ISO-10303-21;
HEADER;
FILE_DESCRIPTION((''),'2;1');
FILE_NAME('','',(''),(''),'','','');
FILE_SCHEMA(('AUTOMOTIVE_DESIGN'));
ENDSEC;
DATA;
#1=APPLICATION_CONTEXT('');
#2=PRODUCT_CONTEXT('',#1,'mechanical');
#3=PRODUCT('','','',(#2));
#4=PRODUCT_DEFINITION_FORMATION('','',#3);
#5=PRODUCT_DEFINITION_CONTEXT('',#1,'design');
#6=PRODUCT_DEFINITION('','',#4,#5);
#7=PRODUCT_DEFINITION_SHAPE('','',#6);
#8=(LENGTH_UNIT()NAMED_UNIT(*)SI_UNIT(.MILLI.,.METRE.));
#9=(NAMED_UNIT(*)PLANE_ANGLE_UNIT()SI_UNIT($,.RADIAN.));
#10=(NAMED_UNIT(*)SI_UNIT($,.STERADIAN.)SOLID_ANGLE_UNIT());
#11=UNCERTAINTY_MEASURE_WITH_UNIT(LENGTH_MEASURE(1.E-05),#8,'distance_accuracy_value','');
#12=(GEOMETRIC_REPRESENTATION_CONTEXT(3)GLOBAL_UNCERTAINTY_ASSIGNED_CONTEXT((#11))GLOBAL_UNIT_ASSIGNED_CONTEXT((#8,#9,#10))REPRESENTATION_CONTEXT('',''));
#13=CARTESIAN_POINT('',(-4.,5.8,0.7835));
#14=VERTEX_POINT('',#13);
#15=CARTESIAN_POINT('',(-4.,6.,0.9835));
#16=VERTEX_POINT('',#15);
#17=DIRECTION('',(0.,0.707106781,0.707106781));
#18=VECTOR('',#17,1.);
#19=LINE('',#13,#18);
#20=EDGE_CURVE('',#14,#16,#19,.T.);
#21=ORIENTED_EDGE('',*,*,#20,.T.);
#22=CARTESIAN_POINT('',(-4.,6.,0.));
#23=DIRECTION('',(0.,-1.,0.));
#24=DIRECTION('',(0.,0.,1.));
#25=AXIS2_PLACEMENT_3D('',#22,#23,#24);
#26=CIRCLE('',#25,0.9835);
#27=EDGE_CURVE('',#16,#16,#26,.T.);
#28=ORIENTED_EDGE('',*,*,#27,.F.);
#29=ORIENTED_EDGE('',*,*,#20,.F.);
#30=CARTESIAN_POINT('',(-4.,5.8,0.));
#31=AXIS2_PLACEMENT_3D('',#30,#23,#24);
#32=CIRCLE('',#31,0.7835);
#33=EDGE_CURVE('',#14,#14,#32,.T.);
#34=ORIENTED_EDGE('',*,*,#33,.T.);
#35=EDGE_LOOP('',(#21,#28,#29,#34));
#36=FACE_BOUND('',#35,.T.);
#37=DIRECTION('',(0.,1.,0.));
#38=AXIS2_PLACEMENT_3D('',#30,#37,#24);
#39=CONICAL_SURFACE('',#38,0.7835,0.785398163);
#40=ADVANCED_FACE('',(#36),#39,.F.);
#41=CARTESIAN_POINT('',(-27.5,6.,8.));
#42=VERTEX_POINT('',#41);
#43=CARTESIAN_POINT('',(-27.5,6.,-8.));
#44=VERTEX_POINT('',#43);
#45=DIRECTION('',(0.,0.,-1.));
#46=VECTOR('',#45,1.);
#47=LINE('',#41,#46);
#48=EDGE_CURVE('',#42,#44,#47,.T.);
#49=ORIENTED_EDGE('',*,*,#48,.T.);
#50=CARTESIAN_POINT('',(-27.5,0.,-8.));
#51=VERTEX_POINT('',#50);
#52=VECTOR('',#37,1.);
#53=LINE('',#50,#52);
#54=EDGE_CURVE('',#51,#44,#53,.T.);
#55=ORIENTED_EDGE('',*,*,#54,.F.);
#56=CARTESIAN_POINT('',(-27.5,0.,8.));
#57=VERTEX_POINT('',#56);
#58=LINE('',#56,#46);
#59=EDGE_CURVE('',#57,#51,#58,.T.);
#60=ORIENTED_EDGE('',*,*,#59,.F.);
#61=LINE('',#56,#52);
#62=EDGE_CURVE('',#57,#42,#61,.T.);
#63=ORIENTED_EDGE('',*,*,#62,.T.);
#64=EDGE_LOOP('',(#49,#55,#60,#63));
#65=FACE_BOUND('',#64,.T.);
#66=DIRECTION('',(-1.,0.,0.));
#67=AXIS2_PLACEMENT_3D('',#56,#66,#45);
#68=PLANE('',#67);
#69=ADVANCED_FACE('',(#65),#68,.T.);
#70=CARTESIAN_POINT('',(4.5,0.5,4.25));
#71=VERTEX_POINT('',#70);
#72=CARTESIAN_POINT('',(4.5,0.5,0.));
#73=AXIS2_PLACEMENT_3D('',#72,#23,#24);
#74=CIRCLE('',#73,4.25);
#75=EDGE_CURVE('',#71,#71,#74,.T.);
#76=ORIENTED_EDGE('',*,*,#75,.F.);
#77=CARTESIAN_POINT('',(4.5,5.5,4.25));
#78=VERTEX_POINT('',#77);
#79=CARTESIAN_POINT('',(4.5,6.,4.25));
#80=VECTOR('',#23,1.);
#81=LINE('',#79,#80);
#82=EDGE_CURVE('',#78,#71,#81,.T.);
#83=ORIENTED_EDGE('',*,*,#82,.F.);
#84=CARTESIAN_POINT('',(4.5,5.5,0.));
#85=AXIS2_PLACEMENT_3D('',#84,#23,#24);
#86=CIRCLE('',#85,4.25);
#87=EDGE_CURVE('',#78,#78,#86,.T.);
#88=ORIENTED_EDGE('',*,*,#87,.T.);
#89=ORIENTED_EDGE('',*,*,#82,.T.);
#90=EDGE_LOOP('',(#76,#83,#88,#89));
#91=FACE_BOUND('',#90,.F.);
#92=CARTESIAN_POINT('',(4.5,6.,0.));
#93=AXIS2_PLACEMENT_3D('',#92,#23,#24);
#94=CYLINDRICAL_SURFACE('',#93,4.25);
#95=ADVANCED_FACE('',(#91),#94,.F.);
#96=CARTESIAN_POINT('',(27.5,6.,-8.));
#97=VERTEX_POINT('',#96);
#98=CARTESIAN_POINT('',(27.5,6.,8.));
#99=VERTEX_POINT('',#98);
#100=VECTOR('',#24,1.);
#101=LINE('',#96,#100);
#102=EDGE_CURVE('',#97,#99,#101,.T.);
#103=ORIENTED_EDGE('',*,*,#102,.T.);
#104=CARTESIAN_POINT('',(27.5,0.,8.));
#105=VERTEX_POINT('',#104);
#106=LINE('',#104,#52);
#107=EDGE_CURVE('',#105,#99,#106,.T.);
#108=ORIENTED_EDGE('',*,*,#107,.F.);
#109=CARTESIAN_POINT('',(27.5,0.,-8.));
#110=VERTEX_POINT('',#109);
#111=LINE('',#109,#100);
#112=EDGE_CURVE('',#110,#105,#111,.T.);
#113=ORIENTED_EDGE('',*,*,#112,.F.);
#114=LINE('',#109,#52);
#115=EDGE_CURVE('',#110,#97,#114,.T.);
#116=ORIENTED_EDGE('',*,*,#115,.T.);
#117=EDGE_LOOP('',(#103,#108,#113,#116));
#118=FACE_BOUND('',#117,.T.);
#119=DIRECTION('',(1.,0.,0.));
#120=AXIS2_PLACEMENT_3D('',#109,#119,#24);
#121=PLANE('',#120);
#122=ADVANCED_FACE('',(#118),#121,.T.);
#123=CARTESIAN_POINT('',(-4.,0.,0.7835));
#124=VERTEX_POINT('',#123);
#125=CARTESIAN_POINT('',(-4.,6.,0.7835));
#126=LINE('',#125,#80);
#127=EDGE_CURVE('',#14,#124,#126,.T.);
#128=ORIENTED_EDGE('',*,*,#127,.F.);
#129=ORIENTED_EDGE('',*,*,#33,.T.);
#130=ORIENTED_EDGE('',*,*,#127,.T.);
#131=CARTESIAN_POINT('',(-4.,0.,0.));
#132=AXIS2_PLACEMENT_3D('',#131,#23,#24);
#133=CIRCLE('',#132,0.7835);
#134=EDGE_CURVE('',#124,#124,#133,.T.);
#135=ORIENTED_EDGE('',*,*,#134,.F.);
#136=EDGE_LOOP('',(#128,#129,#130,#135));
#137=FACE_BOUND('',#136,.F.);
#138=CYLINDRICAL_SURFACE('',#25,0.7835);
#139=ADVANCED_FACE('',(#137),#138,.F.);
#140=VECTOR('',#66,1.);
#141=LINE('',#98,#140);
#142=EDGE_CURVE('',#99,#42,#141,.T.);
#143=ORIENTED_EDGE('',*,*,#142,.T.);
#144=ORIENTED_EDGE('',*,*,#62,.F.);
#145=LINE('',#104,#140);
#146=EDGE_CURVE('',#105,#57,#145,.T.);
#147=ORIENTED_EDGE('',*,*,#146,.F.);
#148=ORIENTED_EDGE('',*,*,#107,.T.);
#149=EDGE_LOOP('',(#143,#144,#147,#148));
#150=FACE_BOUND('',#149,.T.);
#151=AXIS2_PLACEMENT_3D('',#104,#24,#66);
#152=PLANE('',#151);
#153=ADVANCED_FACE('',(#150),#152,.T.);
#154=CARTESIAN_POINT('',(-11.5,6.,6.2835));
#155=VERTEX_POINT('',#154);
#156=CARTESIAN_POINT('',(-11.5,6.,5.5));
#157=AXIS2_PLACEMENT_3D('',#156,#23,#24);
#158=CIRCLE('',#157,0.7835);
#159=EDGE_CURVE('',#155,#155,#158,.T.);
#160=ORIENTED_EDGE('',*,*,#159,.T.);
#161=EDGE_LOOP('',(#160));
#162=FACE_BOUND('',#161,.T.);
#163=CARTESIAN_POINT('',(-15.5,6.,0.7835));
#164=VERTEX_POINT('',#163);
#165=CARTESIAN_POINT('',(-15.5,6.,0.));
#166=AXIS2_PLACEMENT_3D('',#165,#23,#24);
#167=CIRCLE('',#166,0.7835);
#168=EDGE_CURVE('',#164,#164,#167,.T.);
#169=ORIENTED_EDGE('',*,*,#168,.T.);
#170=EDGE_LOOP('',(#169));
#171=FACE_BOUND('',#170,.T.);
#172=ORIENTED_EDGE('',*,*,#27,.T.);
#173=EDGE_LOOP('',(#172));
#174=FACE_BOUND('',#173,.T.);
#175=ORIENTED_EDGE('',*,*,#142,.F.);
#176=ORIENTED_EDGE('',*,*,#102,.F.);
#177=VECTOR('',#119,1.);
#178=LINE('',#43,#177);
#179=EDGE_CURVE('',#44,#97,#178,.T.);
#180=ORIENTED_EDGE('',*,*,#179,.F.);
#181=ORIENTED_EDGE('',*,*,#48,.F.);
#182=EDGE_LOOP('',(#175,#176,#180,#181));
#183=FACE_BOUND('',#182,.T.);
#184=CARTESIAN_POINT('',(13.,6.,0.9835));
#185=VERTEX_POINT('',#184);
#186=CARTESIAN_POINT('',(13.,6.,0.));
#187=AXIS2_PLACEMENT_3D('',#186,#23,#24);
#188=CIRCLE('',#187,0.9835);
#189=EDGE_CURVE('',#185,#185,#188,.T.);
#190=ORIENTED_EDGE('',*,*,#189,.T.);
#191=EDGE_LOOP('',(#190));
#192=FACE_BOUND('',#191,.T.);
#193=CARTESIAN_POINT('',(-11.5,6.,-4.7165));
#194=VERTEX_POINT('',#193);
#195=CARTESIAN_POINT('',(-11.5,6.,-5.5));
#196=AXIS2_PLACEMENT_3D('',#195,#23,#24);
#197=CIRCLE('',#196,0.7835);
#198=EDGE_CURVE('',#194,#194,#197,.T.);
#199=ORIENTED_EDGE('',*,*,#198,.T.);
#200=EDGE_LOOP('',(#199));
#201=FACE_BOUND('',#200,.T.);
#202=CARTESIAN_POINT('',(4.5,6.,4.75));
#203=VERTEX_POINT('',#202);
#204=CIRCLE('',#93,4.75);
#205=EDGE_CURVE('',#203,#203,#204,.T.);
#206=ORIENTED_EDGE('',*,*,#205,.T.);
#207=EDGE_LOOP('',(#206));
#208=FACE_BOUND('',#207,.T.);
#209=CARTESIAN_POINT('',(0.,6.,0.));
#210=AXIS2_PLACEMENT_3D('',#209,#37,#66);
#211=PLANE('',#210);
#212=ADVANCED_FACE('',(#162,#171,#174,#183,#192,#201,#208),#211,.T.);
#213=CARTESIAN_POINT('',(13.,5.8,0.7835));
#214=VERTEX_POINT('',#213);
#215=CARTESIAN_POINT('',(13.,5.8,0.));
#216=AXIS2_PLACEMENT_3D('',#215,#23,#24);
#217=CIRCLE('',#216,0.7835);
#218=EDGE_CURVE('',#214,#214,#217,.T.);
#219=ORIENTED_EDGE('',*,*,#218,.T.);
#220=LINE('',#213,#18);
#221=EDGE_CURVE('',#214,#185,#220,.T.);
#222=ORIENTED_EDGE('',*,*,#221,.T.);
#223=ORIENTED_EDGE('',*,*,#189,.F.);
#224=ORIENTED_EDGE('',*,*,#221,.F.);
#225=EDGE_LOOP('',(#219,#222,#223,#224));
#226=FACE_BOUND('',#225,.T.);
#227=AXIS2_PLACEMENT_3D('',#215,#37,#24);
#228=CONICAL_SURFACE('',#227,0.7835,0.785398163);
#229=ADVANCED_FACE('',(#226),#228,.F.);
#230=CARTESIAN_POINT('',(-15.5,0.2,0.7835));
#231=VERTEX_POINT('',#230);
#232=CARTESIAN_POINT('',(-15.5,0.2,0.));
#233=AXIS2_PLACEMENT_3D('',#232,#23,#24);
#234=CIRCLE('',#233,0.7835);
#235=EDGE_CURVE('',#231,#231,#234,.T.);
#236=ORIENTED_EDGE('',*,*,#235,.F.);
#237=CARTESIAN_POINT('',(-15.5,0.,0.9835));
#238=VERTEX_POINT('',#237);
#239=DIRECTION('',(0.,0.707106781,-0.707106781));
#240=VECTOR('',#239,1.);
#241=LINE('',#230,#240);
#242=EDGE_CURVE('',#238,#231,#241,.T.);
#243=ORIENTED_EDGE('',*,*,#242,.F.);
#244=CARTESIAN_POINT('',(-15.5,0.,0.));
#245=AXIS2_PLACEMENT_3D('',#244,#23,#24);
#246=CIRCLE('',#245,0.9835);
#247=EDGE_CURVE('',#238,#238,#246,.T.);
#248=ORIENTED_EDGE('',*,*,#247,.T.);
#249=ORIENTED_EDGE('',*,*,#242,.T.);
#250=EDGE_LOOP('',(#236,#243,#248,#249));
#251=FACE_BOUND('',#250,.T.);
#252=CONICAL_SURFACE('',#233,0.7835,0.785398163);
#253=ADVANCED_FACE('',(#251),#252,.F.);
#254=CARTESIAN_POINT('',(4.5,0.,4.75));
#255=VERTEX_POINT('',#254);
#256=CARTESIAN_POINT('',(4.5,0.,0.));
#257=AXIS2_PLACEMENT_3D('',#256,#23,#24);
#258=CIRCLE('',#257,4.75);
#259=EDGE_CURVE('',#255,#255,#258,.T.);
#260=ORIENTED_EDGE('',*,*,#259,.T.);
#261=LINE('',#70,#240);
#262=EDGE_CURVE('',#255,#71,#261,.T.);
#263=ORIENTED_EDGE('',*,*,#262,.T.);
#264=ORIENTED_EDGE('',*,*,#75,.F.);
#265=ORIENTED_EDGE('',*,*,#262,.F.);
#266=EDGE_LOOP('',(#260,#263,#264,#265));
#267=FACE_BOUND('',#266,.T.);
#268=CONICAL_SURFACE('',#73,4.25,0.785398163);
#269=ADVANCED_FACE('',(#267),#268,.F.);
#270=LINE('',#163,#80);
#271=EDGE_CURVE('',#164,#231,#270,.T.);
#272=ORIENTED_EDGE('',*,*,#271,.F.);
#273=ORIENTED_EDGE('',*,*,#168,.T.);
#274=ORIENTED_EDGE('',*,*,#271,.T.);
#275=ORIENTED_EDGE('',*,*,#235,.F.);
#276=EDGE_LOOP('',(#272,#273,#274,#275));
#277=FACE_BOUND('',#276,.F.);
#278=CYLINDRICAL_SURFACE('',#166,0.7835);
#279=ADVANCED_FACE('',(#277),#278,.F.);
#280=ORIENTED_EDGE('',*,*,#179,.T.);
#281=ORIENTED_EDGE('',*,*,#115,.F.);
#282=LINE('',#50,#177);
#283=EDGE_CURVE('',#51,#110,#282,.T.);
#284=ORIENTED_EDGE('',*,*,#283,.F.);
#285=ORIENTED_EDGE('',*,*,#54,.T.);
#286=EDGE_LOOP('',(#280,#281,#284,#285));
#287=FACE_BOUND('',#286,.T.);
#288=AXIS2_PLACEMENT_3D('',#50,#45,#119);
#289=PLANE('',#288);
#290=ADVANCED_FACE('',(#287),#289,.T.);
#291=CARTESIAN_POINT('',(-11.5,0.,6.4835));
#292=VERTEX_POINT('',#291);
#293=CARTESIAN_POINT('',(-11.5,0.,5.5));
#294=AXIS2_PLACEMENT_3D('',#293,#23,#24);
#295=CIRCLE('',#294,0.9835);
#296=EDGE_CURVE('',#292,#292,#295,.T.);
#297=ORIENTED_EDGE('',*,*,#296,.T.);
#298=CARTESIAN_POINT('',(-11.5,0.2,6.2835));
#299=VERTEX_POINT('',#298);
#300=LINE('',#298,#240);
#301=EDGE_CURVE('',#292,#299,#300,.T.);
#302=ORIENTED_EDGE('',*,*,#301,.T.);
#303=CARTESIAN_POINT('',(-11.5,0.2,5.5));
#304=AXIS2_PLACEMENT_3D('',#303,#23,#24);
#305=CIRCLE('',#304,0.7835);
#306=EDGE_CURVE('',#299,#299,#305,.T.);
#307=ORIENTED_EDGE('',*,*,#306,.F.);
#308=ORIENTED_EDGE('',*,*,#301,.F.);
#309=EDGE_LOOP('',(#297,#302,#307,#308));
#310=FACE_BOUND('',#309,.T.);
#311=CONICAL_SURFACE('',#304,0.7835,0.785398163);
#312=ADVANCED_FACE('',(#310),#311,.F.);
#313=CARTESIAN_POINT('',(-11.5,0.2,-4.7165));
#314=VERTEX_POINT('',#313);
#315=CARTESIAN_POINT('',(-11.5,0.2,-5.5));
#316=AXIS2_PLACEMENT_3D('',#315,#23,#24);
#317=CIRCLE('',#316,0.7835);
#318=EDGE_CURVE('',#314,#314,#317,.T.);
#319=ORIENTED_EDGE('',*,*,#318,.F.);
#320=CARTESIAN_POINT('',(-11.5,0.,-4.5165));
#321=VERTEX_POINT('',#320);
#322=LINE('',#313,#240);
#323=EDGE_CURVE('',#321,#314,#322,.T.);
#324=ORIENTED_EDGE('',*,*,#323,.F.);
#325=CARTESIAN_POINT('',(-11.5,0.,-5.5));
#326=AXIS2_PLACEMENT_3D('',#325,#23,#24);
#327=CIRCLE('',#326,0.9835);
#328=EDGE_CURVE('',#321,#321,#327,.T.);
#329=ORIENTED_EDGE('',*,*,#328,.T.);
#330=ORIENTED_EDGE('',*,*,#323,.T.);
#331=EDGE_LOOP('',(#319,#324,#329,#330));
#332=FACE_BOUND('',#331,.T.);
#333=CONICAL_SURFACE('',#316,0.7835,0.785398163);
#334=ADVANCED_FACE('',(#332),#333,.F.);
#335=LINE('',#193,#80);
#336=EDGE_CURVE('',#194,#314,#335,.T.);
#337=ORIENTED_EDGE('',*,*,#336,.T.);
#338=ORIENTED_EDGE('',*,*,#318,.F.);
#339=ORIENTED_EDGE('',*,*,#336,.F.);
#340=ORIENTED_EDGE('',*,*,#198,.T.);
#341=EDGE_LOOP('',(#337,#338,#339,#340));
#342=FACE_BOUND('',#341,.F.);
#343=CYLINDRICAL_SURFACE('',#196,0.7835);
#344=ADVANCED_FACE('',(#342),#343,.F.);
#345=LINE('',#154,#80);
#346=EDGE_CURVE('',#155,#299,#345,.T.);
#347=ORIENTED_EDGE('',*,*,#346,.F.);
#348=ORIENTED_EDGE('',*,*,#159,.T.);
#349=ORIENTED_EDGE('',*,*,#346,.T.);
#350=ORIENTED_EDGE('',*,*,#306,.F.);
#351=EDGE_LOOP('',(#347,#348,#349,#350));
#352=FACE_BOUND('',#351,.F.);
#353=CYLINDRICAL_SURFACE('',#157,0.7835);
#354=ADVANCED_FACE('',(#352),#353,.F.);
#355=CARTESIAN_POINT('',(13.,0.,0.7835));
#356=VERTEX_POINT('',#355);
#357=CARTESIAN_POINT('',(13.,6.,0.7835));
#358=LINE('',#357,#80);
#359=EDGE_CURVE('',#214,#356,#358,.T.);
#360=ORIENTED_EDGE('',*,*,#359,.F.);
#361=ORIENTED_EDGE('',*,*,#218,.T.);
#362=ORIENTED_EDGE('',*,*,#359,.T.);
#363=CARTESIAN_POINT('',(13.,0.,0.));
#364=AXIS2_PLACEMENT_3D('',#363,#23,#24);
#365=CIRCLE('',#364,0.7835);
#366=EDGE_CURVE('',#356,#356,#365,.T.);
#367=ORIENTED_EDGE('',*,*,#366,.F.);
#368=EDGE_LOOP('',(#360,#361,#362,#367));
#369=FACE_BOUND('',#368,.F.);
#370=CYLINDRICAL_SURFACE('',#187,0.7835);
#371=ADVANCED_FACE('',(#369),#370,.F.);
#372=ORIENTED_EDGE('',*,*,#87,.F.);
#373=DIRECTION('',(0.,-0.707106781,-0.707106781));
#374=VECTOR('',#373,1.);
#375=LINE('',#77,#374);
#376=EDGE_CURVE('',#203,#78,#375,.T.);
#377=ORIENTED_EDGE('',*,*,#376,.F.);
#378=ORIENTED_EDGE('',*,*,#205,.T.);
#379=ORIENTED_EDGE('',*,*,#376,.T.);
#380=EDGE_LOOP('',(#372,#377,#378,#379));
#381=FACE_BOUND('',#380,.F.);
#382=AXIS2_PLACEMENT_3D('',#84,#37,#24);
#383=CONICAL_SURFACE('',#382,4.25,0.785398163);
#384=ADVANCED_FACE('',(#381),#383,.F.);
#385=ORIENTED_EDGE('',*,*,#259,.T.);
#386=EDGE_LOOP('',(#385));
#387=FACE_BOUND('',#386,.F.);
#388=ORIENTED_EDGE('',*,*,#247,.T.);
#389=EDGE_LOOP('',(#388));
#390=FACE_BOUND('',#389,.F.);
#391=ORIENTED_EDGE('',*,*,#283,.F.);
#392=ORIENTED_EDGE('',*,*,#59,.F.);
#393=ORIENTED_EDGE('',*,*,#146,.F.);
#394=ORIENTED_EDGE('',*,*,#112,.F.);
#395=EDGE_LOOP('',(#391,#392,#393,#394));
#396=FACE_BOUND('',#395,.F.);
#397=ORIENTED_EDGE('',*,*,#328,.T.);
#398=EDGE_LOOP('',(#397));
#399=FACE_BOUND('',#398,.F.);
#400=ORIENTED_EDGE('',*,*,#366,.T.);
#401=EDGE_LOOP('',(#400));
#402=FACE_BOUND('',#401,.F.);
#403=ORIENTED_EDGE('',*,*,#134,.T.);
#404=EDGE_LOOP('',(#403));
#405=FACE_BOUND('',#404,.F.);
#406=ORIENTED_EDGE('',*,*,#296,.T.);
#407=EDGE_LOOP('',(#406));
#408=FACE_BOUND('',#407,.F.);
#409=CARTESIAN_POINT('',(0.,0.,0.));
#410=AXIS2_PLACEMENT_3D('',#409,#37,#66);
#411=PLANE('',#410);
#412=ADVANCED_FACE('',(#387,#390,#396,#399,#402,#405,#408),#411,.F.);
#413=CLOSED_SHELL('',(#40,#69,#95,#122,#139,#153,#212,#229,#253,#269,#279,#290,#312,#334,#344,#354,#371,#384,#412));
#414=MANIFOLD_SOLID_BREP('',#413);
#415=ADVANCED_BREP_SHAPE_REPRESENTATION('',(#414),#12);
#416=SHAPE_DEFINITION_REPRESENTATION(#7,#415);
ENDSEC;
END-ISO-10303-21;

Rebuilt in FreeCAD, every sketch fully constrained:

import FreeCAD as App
import Part
import Sketcher

V = App.Vector


def edges_at(feature, points):
    """Names of the edges that pass closest to the given points."""
    edges = feature.Shape.Edges
    near = lambda p: min(range(len(edges)), key=lambda i: edges[i].distToShape(Part.Vertex(*p))[0])
    return sorted({f"Edge{near(p) + 1}" for p in points})


def add_polygon(sketch, points):
    """Adds a closed chain of lines whose ends are joined by coincident constraints."""
    first, n = sketch.GeometryCount, len(points)
    for a, b in zip(points, points[1:] + points[:1]):
        sketch.addGeometry(Part.LineSegment(App.Vector(*a, 0), App.Vector(*b, 0)), False)
    for i in range(n):
        sketch.addConstraint(Sketcher.Constraint("Coincident", first + i, 2, first + (i + 1) % n, 1))

doc = App.newDocument("Part")
params = doc.addObject("Spreadsheet::Sheet", "Params")
for row, (alias, value) in enumerate([
    ("sketch1_width", "55 mm"),
    ("sketch1_height", "16 mm"),
    ("pad1_length", "6 mm"),
    ("sketch2_diameter", "8.5 mm"),
    ("hole_diameter", "8.5 mm"),
    ("chamfer_size", "0.5 mm"),
    ("hole2_diameter", "1.567 mm"),
    ("chamfer2_size", "0.2 mm"),
    ("hole3_diameter", "1.567 mm"),
    ("chamfer3_size", "0.2 mm"),
], start=1):
    params.set(f"A{row}", alias)
    params.set(f"B{row}", "=" + value)
    params.setAlias(f"B{row}", alias)

body = doc.addObject("PartDesign::Body", "Body")

sketch1 = doc.addObject("Sketcher::SketchObject", "Sketch")
body.addObject(sketch1)
sketch1.AttachmentSupport = (doc.XZ_Plane, [""])
sketch1.MapMode = "FlatFace"
add_polygon(sketch1, [(-28, 8), (28, 8), (28, -8), (-28, -8)])
sketch1.addConstraint(Sketcher.Constraint("Horizontal", 0))
sketch1.addConstraint(Sketcher.Constraint("Vertical", 1))
sketch1.addConstraint(Sketcher.Constraint("Horizontal", 2))
sketch1.addConstraint(Sketcher.Constraint("Vertical", 3))
sketch1.addConstraint(Sketcher.Constraint("Symmetric", 0, 2, 2, 2, -1, 1))
sketch1.addConstraint(Sketcher.Constraint("DistanceX", 0, 1, 0, 2, 55.0))
sketch1.addConstraint(Sketcher.Constraint("DistanceY", 1, 2, 1, 1, 16.0))
sketch1.setExpression("Constraints[9]", "Params.sketch1_width")
sketch1.setExpression("Constraints[10]", "Params.sketch1_height")
pad1 = doc.addObject("PartDesign::Pad", "Pad")
body.addObject(pad1)
pad1.Profile = sketch1
pad1.setExpression("Length", "Params.pad1_length")
pad1.Reversed = True

sketch2 = doc.addObject("Sketcher::SketchObject", "Sketch001")
body.addObject(sketch2)
sketch2.AttachmentSupport = (doc.XZ_Plane, [""])
sketch2.MapMode = "FlatFace"
sketch2.AttachmentOffset = App.Placement(V(0, 0, -6), App.Rotation())
sketch2.addGeometry(Part.Circle(V(4.5, 0, 0), V(0, 0, 1), 4.2), False)
sketch2.addConstraint(Sketcher.Constraint("PointOnObject", 0, 3, -1))
sketch2.addConstraint(Sketcher.Constraint("Diameter", 0, 8.5))
sketch2.addConstraint(Sketcher.Constraint("DistanceX", -1, 1, 0, 3, 4.5))
sketch2.setExpression("Constraints[1]", "Params.sketch2_diameter")
doc.recompute()
hole = doc.addObject("PartDesign::Hole", "Hole")
body.addObject(hole)
hole.Profile = sketch2
hole.ThreadType = "None"
hole.setExpression("Diameter", "Params.hole_diameter")
hole.DepthType = "ThroughAll"
hole.Reversed = True
doc.recompute()

chamfer = doc.addObject("PartDesign::Chamfer", "Chamfer")
body.addObject(chamfer)
chamfer.Base = (hole, edges_at(hole, [(4.5, 0, -4.25), (4.5, 6, -4.25)]))
chamfer.setExpression("Size", "Params.chamfer_size")

sketch3 = doc.addObject("Sketcher::SketchObject", "Sketch002")
body.addObject(sketch3)
sketch3.AttachmentSupport = (doc.XZ_Plane, [""])
sketch3.MapMode = "FlatFace"
sketch3.AttachmentOffset = App.Placement(V(0, 0, -6), App.Rotation())
sketch3.addGeometry(Part.Circle(V(-15.5, 0, 0), V(0, 0, 1), 0.8), False)
sketch3.addGeometry(Part.Circle(V(-11.5, -5.5, 0), V(0, 0, 1), 0.8), False)
sketch3.addGeometry(Part.Circle(V(-11.5, 5.5, 0), V(0, 0, 1), 0.8), False)
sketch3.addConstraint(Sketcher.Constraint("Equal", 0, 1))
sketch3.addConstraint(Sketcher.Constraint("Equal", 1, 2))
sketch3.addConstraint(Sketcher.Constraint("Symmetric", 1, 3, 2, 3, -1))
sketch3.addConstraint(Sketcher.Constraint("PointOnObject", 0, 3, -1))
sketch3.addConstraint(Sketcher.Constraint("Diameter", 0, 1.567))
sketch3.addConstraint(Sketcher.Constraint("DistanceX", 0, 3, 1, 3, 4.0))
sketch3.addConstraint(Sketcher.Constraint("DistanceY", 1, 3, 2, 3, 11.0))
sketch3.addConstraint(Sketcher.Constraint("DistanceX", 0, 3, -1, 1, 15.5))
doc.recompute()
hole2 = doc.addObject("PartDesign::Hole", "Hole001")
body.addObject(hole2)
hole2.Profile = sketch3
hole2.ThreadType = "None"
hole2.setExpression("Diameter", "Params.hole2_diameter")
hole2.DepthType = "ThroughAll"
hole2.Reversed = True
doc.recompute()

chamfer2 = doc.addObject("PartDesign::Chamfer", "Chamfer001")
body.addObject(chamfer2)
chamfer2.Base = (hole2, edges_at(hole2, [(-11.5, 0, -6.284), (-15.5, 0, -0.783), (-11.5, 0, 4.716)]))
chamfer2.setExpression("Size", "Params.chamfer2_size")

sketch4 = doc.addObject("Sketcher::SketchObject", "Sketch003")
body.addObject(sketch4)
sketch4.AttachmentSupport = (doc.XZ_Plane, [""])
sketch4.MapMode = "FlatFace"
sketch4.AttachmentOffset = App.Placement(V(0, 0, -6), App.Rotation())
sketch4.addGeometry(Part.Circle(V(-4, 0, 0), V(0, 0, 1), 0.8), False)
sketch4.addGeometry(Part.Circle(V(13, 0, 0), V(0, 0, 1), 0.8), False)
sketch4.addConstraint(Sketcher.Constraint("Equal", 0, 1))
sketch4.addConstraint(Sketcher.Constraint("PointOnObject", 0, 3, -1))
sketch4.addConstraint(Sketcher.Constraint("PointOnObject", 1, 3, -1))
sketch4.addConstraint(Sketcher.Constraint("Diameter", 0, 1.567))
sketch4.addConstraint(Sketcher.Constraint("DistanceX", 0, 3, -1, 1, 4.0))
sketch4.addConstraint(Sketcher.Constraint("DistanceX", -1, 1, 1, 3, 13.0))
doc.recompute()
hole3 = doc.addObject("PartDesign::Hole", "Hole002")
body.addObject(hole3)
hole3.Profile = sketch4
hole3.ThreadType = "None"
hole3.setExpression("Diameter", "Params.hole3_diameter")
hole3.DepthType = "ThroughAll"
hole3.Reversed = True
doc.recompute()

chamfer3 = doc.addObject("PartDesign::Chamfer", "Chamfer002")
body.addObject(chamfer3)
chamfer3.Base = (hole3, edges_at(hole3, [(13, 6, -0.783), (-4, 6, -0.783)]))
chamfer3.setExpression("Size", "Params.chamfer3_size")

doc.recompute()
